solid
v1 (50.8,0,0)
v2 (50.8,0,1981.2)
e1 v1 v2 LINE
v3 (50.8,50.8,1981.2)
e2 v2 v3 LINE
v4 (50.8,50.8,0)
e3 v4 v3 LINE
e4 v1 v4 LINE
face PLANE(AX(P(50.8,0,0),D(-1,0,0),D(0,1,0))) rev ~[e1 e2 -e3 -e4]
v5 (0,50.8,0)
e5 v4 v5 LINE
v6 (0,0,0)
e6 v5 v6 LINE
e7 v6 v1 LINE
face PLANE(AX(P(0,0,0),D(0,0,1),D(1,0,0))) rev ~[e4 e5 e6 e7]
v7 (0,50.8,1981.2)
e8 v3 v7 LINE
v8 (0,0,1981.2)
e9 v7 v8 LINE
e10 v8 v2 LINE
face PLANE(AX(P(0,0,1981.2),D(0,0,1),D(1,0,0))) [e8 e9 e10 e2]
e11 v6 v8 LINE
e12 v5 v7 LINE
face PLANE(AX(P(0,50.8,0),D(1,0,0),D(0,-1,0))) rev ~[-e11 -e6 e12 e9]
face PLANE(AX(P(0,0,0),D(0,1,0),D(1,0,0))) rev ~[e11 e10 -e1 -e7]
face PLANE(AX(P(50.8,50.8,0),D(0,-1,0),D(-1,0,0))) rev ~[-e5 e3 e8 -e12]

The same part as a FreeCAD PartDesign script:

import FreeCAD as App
import Part
import Sketcher

V = App.Vector
Q = App.Units.Quantity

doc = App.newDocument("Part")
body = doc.addObject("PartDesign::Body", "Body")

sketch1 = body.newObject("Sketcher::SketchObject", "Sketch")
sketch1.AttachmentSupport = (doc.getObject("XY_Plane"), [""])
sketch1.MapMode = "FlatFace"
sketch1.addGeometry([
    Part.LineSegment(V(0, 51, 0), V(0, 0, 0)),
    Part.LineSegment(V(0, 0, 0), V(51, 0, 0)),
    Part.LineSegment(V(51, 0, 0), V(51, 51, 0)),
    Part.LineSegment(V(51, 51, 0), V(0, 51, 0)),
], False)
sketch1.addConstraint([
    Sketcher.Constraint("Coincident", 0, 2, 1, 1),
    Sketcher.Constraint("Coincident", 1, 2, 2, 1),
    Sketcher.Constraint("Coincident", 2, 2, 3, 1),
    Sketcher.Constraint("Coincident", 3, 2, 0, 1),
    Sketcher.Constraint("Vertical", 0),
    Sketcher.Constraint("Horizontal", 1),
    Sketcher.Constraint("Vertical", 2),
    Sketcher.Constraint("Horizontal", 3),
    Sketcher.Constraint("Coincident", 0, 2, -1, 1),
    Sketcher.Constraint("Equal", 3, 0),
    Sketcher.Constraint("DistanceX", 1, 1, 1, 2, Q("2 in")),
])
pad1 = body.newObject("PartDesign::Pad", "Pad")
pad1.Profile = sketch1
pad1.Length = Q("78 in")

doc.recompute()
